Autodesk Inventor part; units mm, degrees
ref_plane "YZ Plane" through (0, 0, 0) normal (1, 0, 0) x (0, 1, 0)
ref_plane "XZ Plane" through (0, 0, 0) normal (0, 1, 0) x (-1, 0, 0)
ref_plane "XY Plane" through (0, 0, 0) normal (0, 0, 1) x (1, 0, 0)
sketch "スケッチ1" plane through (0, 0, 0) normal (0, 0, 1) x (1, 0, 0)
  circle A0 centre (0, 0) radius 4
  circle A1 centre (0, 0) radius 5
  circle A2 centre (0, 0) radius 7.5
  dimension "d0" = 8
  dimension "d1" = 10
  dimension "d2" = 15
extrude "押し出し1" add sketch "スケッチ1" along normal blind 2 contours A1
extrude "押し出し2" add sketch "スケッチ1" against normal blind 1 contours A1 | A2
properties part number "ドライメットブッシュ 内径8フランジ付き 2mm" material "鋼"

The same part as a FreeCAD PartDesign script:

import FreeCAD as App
import Part
import Sketcher

V = App.Vector

doc = App.newDocument("Part")
params = doc.addObject("Spreadsheet::Sheet", "Params")
for row, (alias, value) in enumerate([
    ("sketch1_diameter", "10 mm"),
    ("sketch1_diameter2", "8 mm"),
    ("pad1_length", "2 mm"),
    ("sketch2_diameter", "15 mm"),
    ("sketch2_diameter2", "8 mm"),
    ("pad2_length", "1 mm"),
], start=1):
    params.set(f"A{row}", alias)
    params.set(f"B{row}", "=" + value)
    params.setAlias(f"B{row}", alias)

body = doc.addObject("PartDesign::Body", "Body")

sketch1 = doc.addObject("Sketcher::SketchObject", "Sketch")
body.addObject(sketch1)
sketch1.AttachmentSupport = (doc.XY_Plane, [""])
sketch1.MapMode = "FlatFace"
sketch1.addGeometry(Part.Circle(V(0, 0, 0), V(0, 0, 1), 5), False)
sketch1.addGeometry(Part.Circle(V(0, 0, 0), V(0, 0, 1), 4), False)
sketch1.addConstraint(Sketcher.Constraint("Coincident", 0, 3, -1, 1))
sketch1.addConstraint(Sketcher.Constraint("Coincident", 1, 3, -1, 1))
sketch1.addConstraint(Sketcher.Constraint("Diameter", 0, 10.0))
sketch1.addConstraint(Sketcher.Constraint("Diameter", 1, 8.0))
sketch1.setExpression("Constraints[2]", "Params.sketch1_diameter")
sketch1.setExpression("Constraints[3]", "Params.sketch1_diameter2")
pad1 = doc.addObject("PartDesign::Pad", "Pad")
body.addObject(pad1)
pad1.Profile = sketch1
pad1.setExpression("Length", "Params.pad1_length")

sketch2 = doc.addObject("Sketcher::SketchObject", "Sketch001")
body.addObject(sketch2)
sketch2.AttachmentSupport = (doc.XY_Plane, [""])
sketch2.MapMode = "FlatFace"
sketch2.addGeometry(Part.Circle(V(0, 0, 0), V(0, 0, 1), 7.5), False)
sketch2.addGeometry(Part.Circle(V(0, 0, 0), V(0, 0, 1), 4), False)
sketch2.addConstraint(Sketcher.Constraint("Coincident", 0, 3, -1, 1))
sketch2.addConstraint(Sketcher.Constraint("Coincident", 1, 3, -1, 1))
sketch2.addConstraint(Sketcher.Constraint("Diameter", 0, 15.0))
sketch2.addConstraint(Sketcher.Constraint("Diameter", 1, 8.0))
sketch2.setExpression("Constraints[2]", "Params.sketch2_diameter")
sketch2.setExpression("Constraints[3]", "Params.sketch2_diameter2")
pad2 = doc.addObject("PartDesign::Pad", "Pad001")
body.addObject(pad2)
pad2.Profile = sketch2
pad2.setExpression("Length", "Params.pad2_length")
pad2.Reversed = True

doc.recompute()
